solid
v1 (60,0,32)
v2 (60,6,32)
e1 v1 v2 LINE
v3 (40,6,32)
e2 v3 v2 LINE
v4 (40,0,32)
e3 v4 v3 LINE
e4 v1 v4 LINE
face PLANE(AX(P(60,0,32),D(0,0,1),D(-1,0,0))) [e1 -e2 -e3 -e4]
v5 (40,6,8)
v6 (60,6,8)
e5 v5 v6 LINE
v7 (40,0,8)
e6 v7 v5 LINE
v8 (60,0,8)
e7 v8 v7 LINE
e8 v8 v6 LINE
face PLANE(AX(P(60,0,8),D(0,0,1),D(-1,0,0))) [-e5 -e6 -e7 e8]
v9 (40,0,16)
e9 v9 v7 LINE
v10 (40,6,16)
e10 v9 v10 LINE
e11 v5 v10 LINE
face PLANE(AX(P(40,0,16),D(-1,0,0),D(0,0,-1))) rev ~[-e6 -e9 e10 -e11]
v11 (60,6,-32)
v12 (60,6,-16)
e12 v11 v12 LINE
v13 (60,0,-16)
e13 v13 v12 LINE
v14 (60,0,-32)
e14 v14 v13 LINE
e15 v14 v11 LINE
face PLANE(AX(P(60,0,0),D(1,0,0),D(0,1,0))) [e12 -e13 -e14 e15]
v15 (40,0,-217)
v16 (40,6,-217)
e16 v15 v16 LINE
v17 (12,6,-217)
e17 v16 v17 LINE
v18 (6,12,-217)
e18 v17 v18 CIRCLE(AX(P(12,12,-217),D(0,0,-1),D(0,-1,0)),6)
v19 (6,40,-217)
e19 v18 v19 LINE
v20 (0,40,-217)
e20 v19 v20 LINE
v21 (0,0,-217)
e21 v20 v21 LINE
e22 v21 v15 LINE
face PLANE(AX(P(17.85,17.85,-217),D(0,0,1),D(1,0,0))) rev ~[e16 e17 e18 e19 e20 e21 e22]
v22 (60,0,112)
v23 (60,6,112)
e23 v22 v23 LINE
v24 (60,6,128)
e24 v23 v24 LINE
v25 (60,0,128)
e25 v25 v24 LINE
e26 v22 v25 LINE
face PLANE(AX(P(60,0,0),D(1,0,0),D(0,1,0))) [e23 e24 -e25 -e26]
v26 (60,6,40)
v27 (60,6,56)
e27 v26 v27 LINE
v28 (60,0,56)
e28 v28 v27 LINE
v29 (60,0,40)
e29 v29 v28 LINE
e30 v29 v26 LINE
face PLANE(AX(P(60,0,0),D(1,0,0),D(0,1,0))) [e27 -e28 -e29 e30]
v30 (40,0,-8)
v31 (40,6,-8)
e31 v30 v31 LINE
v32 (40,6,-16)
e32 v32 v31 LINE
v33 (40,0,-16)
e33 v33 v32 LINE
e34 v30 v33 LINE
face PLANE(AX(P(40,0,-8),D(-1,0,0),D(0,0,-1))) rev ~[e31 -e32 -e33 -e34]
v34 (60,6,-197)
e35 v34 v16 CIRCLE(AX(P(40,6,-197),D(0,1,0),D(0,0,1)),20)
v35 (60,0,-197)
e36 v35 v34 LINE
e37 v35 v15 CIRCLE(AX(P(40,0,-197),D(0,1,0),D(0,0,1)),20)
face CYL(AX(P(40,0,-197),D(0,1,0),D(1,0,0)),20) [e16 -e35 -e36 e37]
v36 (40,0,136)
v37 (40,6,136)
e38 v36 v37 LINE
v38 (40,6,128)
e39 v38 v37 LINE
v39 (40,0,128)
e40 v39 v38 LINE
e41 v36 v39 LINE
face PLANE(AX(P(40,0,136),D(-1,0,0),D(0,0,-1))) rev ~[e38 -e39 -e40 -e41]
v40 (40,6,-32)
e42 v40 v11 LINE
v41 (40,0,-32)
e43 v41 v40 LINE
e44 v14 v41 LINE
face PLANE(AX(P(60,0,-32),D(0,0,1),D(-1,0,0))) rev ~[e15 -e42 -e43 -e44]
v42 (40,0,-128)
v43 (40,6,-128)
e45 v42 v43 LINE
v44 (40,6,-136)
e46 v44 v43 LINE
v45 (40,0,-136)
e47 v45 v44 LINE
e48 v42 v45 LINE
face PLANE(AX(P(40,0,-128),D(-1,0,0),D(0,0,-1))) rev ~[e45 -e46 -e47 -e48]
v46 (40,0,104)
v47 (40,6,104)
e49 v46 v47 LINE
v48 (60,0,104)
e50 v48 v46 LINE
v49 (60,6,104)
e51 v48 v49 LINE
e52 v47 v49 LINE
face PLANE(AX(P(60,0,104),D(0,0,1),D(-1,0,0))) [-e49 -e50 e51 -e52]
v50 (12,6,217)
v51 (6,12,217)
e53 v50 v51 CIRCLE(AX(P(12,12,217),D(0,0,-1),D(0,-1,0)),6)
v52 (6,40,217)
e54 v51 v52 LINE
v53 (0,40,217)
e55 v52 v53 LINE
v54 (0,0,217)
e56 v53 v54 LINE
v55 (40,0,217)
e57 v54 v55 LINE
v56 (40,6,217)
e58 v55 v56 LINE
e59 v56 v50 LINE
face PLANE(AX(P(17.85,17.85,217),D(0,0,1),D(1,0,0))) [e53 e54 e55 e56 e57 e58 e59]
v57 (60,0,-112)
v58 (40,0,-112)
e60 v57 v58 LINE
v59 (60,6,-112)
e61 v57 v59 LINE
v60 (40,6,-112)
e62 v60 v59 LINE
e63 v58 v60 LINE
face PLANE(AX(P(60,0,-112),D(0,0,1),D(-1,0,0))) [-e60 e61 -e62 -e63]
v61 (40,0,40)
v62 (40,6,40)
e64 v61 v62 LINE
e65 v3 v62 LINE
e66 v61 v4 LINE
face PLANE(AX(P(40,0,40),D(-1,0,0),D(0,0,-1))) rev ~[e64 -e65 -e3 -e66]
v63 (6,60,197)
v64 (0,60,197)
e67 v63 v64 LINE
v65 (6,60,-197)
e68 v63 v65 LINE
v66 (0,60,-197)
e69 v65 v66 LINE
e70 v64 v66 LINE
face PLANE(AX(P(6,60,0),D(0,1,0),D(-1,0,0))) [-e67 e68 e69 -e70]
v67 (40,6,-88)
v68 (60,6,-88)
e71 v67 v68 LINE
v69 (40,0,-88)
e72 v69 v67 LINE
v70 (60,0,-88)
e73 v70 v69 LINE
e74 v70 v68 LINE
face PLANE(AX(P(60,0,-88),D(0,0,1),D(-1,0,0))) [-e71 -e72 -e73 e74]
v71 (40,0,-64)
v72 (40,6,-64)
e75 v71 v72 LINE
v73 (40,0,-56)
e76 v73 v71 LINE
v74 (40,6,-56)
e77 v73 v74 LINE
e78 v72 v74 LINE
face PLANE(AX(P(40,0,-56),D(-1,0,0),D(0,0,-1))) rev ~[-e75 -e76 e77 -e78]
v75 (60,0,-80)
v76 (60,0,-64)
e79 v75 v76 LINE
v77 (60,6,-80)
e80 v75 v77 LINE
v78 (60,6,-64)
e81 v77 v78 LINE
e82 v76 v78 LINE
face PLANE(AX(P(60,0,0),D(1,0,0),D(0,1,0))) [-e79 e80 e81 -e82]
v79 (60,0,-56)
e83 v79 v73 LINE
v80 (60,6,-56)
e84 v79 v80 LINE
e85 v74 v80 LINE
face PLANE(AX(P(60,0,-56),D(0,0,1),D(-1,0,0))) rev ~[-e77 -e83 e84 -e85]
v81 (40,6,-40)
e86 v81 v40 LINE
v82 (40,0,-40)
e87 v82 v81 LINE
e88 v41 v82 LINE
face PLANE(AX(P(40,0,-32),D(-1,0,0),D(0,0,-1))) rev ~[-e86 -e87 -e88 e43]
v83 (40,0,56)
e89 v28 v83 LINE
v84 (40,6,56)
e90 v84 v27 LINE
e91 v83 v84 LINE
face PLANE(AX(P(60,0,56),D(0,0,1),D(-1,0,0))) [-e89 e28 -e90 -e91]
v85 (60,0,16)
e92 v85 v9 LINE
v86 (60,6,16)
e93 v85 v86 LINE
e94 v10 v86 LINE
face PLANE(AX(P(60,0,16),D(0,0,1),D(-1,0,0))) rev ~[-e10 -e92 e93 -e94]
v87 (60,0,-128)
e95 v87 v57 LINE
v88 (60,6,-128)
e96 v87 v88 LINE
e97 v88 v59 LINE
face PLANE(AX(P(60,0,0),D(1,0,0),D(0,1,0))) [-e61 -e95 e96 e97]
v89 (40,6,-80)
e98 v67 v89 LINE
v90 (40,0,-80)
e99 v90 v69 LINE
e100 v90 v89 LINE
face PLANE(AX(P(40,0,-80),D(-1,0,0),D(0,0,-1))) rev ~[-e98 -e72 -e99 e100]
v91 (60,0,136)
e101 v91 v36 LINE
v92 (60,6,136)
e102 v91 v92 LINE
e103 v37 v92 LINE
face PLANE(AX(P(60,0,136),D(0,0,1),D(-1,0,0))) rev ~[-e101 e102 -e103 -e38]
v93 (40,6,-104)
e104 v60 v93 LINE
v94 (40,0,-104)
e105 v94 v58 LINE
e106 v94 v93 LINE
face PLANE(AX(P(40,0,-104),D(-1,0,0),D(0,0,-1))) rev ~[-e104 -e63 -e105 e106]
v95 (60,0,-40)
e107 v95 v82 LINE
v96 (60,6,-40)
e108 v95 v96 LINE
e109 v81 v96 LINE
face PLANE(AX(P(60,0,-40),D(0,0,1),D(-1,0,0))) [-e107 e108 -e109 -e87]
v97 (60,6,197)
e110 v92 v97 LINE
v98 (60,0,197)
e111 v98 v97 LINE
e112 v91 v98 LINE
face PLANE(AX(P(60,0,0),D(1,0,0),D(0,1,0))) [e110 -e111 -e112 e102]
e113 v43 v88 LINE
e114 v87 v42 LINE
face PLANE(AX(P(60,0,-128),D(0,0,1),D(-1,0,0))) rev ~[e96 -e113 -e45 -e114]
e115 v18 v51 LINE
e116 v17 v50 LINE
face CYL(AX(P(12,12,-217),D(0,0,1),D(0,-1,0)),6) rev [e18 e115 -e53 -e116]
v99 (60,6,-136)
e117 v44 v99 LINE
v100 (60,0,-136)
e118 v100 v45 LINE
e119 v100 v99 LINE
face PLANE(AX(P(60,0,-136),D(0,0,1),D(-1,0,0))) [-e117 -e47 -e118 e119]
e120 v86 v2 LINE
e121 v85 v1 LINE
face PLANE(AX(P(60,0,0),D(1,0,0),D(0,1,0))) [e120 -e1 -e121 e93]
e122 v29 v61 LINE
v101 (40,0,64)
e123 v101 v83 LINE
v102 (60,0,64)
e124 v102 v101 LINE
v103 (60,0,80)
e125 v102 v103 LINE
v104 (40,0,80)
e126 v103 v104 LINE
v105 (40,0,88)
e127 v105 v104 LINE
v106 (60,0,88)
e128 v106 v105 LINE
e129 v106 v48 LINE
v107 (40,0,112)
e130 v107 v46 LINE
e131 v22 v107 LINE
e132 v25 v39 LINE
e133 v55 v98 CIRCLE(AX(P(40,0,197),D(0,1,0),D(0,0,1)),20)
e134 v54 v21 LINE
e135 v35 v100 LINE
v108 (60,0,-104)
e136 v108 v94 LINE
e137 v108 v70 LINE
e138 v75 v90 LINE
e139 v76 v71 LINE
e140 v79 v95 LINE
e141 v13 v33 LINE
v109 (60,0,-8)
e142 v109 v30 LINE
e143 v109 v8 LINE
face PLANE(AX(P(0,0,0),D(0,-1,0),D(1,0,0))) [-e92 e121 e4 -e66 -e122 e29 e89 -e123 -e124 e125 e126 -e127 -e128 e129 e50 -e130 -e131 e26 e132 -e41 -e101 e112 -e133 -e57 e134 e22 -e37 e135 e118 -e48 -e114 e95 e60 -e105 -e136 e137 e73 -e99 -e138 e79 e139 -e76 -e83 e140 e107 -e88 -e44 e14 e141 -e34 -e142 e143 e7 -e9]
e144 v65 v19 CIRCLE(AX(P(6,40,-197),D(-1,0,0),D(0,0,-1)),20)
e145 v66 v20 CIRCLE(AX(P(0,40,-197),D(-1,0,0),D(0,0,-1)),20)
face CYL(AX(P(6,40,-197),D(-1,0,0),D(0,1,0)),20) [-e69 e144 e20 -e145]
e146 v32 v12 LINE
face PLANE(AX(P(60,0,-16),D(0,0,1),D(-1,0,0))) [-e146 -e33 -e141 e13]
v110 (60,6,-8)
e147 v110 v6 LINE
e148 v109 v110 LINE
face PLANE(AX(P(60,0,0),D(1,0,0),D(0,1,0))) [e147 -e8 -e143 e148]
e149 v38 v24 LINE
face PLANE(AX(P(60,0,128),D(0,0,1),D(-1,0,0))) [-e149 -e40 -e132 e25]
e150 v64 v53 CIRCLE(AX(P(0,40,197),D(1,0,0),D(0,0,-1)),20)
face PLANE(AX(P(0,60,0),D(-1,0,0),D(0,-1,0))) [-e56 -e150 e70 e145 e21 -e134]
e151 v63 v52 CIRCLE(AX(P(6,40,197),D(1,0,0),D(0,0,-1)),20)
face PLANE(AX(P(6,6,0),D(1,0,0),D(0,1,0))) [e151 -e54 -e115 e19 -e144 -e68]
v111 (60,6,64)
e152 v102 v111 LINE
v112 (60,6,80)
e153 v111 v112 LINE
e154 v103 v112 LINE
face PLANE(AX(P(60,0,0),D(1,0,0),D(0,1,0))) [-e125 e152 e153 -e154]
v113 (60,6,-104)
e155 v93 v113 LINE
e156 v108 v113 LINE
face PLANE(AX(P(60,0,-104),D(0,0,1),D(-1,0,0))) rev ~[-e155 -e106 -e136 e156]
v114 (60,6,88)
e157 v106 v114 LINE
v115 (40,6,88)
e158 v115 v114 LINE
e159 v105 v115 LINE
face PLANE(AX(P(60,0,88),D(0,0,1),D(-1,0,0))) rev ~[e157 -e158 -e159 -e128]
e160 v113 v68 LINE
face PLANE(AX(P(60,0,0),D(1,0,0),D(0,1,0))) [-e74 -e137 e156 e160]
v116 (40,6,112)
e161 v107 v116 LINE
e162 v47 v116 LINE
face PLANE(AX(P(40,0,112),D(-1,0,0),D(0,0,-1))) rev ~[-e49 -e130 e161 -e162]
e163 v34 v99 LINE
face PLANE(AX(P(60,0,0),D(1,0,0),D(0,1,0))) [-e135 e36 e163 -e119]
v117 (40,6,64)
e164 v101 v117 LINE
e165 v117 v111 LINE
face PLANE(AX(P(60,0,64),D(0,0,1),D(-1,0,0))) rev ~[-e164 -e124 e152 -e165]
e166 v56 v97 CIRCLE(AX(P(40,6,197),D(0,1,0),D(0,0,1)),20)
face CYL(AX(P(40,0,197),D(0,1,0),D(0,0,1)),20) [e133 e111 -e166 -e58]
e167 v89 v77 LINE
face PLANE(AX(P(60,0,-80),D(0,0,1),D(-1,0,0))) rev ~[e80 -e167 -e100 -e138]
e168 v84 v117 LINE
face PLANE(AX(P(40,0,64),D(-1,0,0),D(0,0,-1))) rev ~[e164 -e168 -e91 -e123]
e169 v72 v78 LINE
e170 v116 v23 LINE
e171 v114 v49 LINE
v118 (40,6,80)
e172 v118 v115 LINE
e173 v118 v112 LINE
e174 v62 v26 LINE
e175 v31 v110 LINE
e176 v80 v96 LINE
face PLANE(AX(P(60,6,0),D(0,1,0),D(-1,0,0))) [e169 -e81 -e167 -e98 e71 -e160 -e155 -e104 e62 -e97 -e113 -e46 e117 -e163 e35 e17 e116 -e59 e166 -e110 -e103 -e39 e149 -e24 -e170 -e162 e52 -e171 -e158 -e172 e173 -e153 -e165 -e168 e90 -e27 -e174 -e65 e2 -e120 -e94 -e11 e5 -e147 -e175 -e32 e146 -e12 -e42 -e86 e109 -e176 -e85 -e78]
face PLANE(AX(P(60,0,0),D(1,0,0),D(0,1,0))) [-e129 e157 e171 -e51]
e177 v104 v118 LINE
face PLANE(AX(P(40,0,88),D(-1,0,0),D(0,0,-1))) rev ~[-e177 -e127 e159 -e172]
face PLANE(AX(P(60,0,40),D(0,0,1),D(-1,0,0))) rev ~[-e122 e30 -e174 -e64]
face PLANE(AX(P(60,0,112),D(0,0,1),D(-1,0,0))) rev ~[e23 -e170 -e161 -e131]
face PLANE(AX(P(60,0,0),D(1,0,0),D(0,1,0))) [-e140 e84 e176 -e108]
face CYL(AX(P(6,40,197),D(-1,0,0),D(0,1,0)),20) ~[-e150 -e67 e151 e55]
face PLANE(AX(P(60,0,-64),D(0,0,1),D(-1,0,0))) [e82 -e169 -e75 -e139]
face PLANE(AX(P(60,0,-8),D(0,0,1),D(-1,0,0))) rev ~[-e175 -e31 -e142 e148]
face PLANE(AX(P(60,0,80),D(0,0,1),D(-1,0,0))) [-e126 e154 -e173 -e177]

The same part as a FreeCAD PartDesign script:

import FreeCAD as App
import Part
import Sketcher
from FreeCAD import Vector
Q = App.Units.Quantity


def edges_at(feature, points):
    """Names of the edges that pass closest to the given points."""
    edges = feature.Shape.Edges
    near = lambda p: min(range(len(edges)), key=lambda i: edges[i].distToShape(Part.Vertex(*p))[0])
    return sorted({f"Edge{near(p) + 1}" for p in points})

doc = App.newDocument("Part")
body = doc.addObject("PartDesign::Body", "Body")

# Sketch on XY plane
sketch1 = doc.addObject("Sketcher::SketchObject", "Sketch")
body.addObject(sketch1)
sketch1.AttachmentSupport = (doc.XY_Plane, [""])
sketch1.MapMode = "FlatFace"
sketch1.addGeometry(Part.LineSegment(Vector(0, 0, 0), Vector(60, 0, 0)), False)
sketch1.addGeometry(Part.LineSegment(Vector(60, 0, 0), Vector(60, 6, 0)), False)
sketch1.addGeometry(Part.LineSegment(Vector(60, 6, 0), Vector(6, 6, 0)), False)
sketch1.addGeometry(Part.LineSegment(Vector(6, 6, 0), Vector(6, 60, 0)), False)
sketch1.addGeometry(Part.LineSegment(Vector(6, 60, 0), Vector(0, 60, 0)), False)
sketch1.addGeometry(Part.LineSegment(Vector(0, 60, 0), Vector(0, 0, 0)), False)
sketch1.addConstraint(Sketcher.Constraint("Coincident", 0, 2, 1, 1))
sketch1.addConstraint(Sketcher.Constraint("Coincident", 1, 2, 2, 1))
sketch1.addConstraint(Sketcher.Constraint("Coincident", 2, 2, 3, 1))
sketch1.addConstraint(Sketcher.Constraint("Coincident", 3, 2, 4, 1))
sketch1.addConstraint(Sketcher.Constraint("Coincident", 4, 2, 5, 1))
sketch1.addConstraint(Sketcher.Constraint("Coincident", 5, 2, 0, 1))
sketch1.addConstraint(Sketcher.Constraint("Horizontal", 0))
sketch1.addConstraint(Sketcher.Constraint("Vertical", 1))
sketch1.addConstraint(Sketcher.Constraint("Horizontal", 2))
sketch1.addConstraint(Sketcher.Constraint("Vertical", 3))
sketch1.addConstraint(Sketcher.Constraint("Horizontal", 4))
sketch1.addConstraint(Sketcher.Constraint("Vertical", 5))
sketch1.addConstraint(Sketcher.Constraint("Coincident", 5, 2, -1, 1))
sketch1.addConstraint(Sketcher.Constraint("Equal", 4, 1))
sketch1.addConstraint(Sketcher.Constraint("Equal", 2, 3))
sketch1.addConstraint(Sketcher.Constraint("DistanceX", 0, 1, 0, 2, Q("60 mm")))
sketch1.addConstraint(Sketcher.Constraint("DistanceX", 2, 2, 2, 1, Q("54 mm")))
pad1 = doc.addObject("PartDesign::Pad", "Pad")
body.addObject(pad1)
pad1.Profile = sketch1
pad1.Length = 434
pad1.Midplane = True
doc.recompute()

fillet = doc.addObject("PartDesign::Fillet", "Fillet")
body.addObject(fillet)
fillet.Base = (pad1, edges_at(pad1, [
    (60, 3, 217),
    (3, 60, 217),
    (3, 60, -217),
    (60, 3, -217),
]))
fillet.Radius = 20

# Sketch on XZ plane
sketch2 = doc.addObject("Sketcher::SketchObject", "Sketch001")
body.addObject(sketch2)
sketch2.AttachmentSupport = (doc.XZ_Plane, [""])
sketch2.MapMode = "FlatFace"
sketch2.addGeometry(Part.LineSegment(Vector(60, 8, 0), Vector(60, 16, 0)), False)
sketch2.addGeometry(Part.LineSegment(Vector(60, 16, 0), Vector(40, 16, 0)), False)
sketch2.addGeometry(Part.LineSegment(Vector(40, 16, 0), Vector(40, 8, 0)), False)
sketch2.addGeometry(Part.LineSegment(Vector(40, 8, 0), Vector(60, 8, 0)), False)
sketch2.addConstraint(Sketcher.Constraint("Coincident", 0, 2, 1, 1))
sketch2.addConstraint(Sketcher.Constraint("Coincident", 1, 2, 2, 1))
sketch2.addConstraint(Sketcher.Constraint("Coincident", 2, 2, 3, 1))
sketch2.addConstraint(Sketcher.Constraint("Coincident", 3, 2, 0, 1))
sketch2.addConstraint(Sketcher.Constraint("Vertical", 0))
sketch2.addConstraint(Sketcher.Constraint("Horizontal", 1))
sketch2.addConstraint(Sketcher.Constraint("Vertical", 2))
sketch2.addConstraint(Sketcher.Constraint("Horizontal", 3))
sketch2.addConstraint(Sketcher.Constraint("DistanceX", 1, 2, 1, 1, Q("20 mm")))
sketch2.addConstraint(Sketcher.Constraint("DistanceY", 0, 1, 0, 2, Q("8 mm")))
sketch2.addConstraint(Sketcher.Constraint("DistanceX", -1, 1, 0, 2, Q("60 mm")))
sketch2.addConstraint(Sketcher.Constraint("DistanceY", -1, 1, 0, 2, Q("16 mm")))
pocket1 = doc.addObject("PartDesign::Pocket", "Pocket")
body.addObject(pocket1)
pocket1.Profile = sketch2
pocket1.Length = 10
doc.recompute()

linearpattern = doc.addObject("PartDesign::LinearPattern", "LinearPattern")
body.addObject(linearpattern)
linearpattern.Originals = [pocket1]
linearpattern.Direction = (doc.Z_Axis, [""])
linearpattern.Mode = "offset"
linearpattern.Offset = 24
linearpattern.Occurrences = 6
body.Tip = linearpattern
doc.recompute()

linearpattern2 = doc.addObject("PartDesign::LinearPattern", "LinearPattern001")
body.addObject(linearpattern2)
linearpattern2.Originals = [pocket1]
linearpattern2.Direction = (doc.Z_Axis, [""])
linearpattern2.Mode = "offset"
linearpattern2.Offset = 24
linearpattern2.Occurrences = 7
linearpattern2.Reversed = True
body.Tip = linearpattern2
doc.recompute()

fillet2 = doc.addObject("PartDesign::Fillet", "Fillet001")
body.addObject(fillet2)
fillet2.Base = (linearpattern2, edges_at(linearpattern2, [(6, 6, 0)]))
fillet2.Radius = 6

doc.recompute()
